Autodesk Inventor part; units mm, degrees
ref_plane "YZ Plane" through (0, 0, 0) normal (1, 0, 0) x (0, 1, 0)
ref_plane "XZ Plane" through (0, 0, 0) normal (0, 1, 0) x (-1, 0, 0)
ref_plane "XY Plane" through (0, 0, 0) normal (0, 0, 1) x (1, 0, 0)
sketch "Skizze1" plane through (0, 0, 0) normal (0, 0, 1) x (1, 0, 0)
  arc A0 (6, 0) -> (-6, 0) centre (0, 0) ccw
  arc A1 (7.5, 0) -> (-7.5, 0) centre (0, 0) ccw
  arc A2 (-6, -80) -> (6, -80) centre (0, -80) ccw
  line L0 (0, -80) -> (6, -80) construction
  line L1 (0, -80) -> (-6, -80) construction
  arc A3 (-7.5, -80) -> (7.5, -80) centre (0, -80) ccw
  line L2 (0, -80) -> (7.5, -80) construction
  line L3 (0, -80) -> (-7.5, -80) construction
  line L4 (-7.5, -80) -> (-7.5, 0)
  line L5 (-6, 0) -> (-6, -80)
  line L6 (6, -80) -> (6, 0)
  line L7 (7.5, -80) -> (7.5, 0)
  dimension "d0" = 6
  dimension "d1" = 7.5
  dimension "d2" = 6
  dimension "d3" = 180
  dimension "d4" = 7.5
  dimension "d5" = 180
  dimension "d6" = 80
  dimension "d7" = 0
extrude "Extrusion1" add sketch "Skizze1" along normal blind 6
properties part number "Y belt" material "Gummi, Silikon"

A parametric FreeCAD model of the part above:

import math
import FreeCAD as App
import Part
import Sketcher
from FreeCAD import Vector
Q = App.Units.Quantity

doc = App.newDocument("Part")
params = doc.addObject("Spreadsheet::Sheet", "Params")
for row, (alias, value) in enumerate([
    ("sketch1_radius", "6 mm"),
    ("sketch1_radius2", "7.5 mm"),
    ("sketch1_height", "80 mm"),
    ("pad1_length", "6 mm"),
], start=1):
    params.set(f"A{row}", alias)
    params.set(f"B{row}", "=" + value)
    params.setAlias(f"B{row}", alias)

body = doc.addObject("PartDesign::Body", "Body")

# Sketch on XY plane
sketch1 = body.newObject("Sketcher::SketchObject", "Sketch")
sketch1.AttachmentSupport = (doc.getObject("XY_Plane"), [""])
sketch1.MapMode = "FlatFace"
sketch1.addGeometry([
    Part.LineSegment(Vector(8, -80, 0), Vector(8, 0, 0)),  # 0
    Part.ArcOfCircle(Part.Circle(Vector(0, 0, 0), Vector(0, 0, 1), 8), math.radians(0), math.radians(180)),  # 1
    Part.LineSegment(Vector(-8, 0, 0), Vector(-8, -80, 0)),  # 2
    Part.ArcOfCircle(Part.Circle(Vector(0, -80, 0), Vector(0, 0, 1), 8), math.radians(180), math.radians(360)),  # 3
    Part.ArcOfCircle(Part.Circle(Vector(0, 0, 0), Vector(0, 0, 1), 6), math.radians(0), math.radians(180)),  # 4
    Part.LineSegment(Vector(6, 0, 0), Vector(6, -80, 0)),  # 5
    Part.ArcOfCircle(Part.Circle(Vector(0, -80, 0), Vector(0, 0, 1), 6), math.radians(180), math.radians(360)),  # 6
    Part.LineSegment(Vector(-6, -80, 0), Vector(-6, 0, 0)),  # 7
], False)
sketch1.addConstraint([
    Sketcher.Constraint("Tangent", 0, 2, 1, 1),
    Sketcher.Constraint("Tangent", 1, 2, 2, 1),
    Sketcher.Constraint("Tangent", 2, 2, 3, 1),
    Sketcher.Constraint("Tangent", 3, 2, 0, 1),
    Sketcher.Constraint("Tangent", 4, 1, 5, 1),
    Sketcher.Constraint("Tangent", 5, 2, 6, 2),
    Sketcher.Constraint("Tangent", 6, 1, 7, 1),
    Sketcher.Constraint("Tangent", 7, 2, 4, 2),
    Sketcher.Constraint("Vertical", 0),
    Sketcher.Constraint("Vertical", 2),
    Sketcher.Constraint("Vertical", 5),
    Sketcher.Constraint("Vertical", 7),
    Sketcher.Constraint("Coincident", 1, 3, -1, 1),
    Sketcher.Constraint("Coincident", 4, 3, -1, 1),
    Sketcher.Constraint("Horizontal", 6, 3, 2, 2),
    Sketcher.Constraint("Radius", 4, Q("6 mm")),
    Sketcher.Constraint("Radius", 1, Q("7.5 mm")),
    Sketcher.Constraint("DistanceY", 0, 1, 0, 2, Q("80 mm")),
])
sketch1.setExpression("Constraints[15]", "Params.sketch1_radius")
sketch1.setExpression("Constraints[16]", "Params.sketch1_radius2")
sketch1.setExpression("Constraints[17]", "Params.sketch1_height")
pad1 = body.newObject("PartDesign::Pad", "Pad")
pad1.Profile = sketch1
pad1.setExpression("Length", "Params.pad1_length")

doc.recompute()
